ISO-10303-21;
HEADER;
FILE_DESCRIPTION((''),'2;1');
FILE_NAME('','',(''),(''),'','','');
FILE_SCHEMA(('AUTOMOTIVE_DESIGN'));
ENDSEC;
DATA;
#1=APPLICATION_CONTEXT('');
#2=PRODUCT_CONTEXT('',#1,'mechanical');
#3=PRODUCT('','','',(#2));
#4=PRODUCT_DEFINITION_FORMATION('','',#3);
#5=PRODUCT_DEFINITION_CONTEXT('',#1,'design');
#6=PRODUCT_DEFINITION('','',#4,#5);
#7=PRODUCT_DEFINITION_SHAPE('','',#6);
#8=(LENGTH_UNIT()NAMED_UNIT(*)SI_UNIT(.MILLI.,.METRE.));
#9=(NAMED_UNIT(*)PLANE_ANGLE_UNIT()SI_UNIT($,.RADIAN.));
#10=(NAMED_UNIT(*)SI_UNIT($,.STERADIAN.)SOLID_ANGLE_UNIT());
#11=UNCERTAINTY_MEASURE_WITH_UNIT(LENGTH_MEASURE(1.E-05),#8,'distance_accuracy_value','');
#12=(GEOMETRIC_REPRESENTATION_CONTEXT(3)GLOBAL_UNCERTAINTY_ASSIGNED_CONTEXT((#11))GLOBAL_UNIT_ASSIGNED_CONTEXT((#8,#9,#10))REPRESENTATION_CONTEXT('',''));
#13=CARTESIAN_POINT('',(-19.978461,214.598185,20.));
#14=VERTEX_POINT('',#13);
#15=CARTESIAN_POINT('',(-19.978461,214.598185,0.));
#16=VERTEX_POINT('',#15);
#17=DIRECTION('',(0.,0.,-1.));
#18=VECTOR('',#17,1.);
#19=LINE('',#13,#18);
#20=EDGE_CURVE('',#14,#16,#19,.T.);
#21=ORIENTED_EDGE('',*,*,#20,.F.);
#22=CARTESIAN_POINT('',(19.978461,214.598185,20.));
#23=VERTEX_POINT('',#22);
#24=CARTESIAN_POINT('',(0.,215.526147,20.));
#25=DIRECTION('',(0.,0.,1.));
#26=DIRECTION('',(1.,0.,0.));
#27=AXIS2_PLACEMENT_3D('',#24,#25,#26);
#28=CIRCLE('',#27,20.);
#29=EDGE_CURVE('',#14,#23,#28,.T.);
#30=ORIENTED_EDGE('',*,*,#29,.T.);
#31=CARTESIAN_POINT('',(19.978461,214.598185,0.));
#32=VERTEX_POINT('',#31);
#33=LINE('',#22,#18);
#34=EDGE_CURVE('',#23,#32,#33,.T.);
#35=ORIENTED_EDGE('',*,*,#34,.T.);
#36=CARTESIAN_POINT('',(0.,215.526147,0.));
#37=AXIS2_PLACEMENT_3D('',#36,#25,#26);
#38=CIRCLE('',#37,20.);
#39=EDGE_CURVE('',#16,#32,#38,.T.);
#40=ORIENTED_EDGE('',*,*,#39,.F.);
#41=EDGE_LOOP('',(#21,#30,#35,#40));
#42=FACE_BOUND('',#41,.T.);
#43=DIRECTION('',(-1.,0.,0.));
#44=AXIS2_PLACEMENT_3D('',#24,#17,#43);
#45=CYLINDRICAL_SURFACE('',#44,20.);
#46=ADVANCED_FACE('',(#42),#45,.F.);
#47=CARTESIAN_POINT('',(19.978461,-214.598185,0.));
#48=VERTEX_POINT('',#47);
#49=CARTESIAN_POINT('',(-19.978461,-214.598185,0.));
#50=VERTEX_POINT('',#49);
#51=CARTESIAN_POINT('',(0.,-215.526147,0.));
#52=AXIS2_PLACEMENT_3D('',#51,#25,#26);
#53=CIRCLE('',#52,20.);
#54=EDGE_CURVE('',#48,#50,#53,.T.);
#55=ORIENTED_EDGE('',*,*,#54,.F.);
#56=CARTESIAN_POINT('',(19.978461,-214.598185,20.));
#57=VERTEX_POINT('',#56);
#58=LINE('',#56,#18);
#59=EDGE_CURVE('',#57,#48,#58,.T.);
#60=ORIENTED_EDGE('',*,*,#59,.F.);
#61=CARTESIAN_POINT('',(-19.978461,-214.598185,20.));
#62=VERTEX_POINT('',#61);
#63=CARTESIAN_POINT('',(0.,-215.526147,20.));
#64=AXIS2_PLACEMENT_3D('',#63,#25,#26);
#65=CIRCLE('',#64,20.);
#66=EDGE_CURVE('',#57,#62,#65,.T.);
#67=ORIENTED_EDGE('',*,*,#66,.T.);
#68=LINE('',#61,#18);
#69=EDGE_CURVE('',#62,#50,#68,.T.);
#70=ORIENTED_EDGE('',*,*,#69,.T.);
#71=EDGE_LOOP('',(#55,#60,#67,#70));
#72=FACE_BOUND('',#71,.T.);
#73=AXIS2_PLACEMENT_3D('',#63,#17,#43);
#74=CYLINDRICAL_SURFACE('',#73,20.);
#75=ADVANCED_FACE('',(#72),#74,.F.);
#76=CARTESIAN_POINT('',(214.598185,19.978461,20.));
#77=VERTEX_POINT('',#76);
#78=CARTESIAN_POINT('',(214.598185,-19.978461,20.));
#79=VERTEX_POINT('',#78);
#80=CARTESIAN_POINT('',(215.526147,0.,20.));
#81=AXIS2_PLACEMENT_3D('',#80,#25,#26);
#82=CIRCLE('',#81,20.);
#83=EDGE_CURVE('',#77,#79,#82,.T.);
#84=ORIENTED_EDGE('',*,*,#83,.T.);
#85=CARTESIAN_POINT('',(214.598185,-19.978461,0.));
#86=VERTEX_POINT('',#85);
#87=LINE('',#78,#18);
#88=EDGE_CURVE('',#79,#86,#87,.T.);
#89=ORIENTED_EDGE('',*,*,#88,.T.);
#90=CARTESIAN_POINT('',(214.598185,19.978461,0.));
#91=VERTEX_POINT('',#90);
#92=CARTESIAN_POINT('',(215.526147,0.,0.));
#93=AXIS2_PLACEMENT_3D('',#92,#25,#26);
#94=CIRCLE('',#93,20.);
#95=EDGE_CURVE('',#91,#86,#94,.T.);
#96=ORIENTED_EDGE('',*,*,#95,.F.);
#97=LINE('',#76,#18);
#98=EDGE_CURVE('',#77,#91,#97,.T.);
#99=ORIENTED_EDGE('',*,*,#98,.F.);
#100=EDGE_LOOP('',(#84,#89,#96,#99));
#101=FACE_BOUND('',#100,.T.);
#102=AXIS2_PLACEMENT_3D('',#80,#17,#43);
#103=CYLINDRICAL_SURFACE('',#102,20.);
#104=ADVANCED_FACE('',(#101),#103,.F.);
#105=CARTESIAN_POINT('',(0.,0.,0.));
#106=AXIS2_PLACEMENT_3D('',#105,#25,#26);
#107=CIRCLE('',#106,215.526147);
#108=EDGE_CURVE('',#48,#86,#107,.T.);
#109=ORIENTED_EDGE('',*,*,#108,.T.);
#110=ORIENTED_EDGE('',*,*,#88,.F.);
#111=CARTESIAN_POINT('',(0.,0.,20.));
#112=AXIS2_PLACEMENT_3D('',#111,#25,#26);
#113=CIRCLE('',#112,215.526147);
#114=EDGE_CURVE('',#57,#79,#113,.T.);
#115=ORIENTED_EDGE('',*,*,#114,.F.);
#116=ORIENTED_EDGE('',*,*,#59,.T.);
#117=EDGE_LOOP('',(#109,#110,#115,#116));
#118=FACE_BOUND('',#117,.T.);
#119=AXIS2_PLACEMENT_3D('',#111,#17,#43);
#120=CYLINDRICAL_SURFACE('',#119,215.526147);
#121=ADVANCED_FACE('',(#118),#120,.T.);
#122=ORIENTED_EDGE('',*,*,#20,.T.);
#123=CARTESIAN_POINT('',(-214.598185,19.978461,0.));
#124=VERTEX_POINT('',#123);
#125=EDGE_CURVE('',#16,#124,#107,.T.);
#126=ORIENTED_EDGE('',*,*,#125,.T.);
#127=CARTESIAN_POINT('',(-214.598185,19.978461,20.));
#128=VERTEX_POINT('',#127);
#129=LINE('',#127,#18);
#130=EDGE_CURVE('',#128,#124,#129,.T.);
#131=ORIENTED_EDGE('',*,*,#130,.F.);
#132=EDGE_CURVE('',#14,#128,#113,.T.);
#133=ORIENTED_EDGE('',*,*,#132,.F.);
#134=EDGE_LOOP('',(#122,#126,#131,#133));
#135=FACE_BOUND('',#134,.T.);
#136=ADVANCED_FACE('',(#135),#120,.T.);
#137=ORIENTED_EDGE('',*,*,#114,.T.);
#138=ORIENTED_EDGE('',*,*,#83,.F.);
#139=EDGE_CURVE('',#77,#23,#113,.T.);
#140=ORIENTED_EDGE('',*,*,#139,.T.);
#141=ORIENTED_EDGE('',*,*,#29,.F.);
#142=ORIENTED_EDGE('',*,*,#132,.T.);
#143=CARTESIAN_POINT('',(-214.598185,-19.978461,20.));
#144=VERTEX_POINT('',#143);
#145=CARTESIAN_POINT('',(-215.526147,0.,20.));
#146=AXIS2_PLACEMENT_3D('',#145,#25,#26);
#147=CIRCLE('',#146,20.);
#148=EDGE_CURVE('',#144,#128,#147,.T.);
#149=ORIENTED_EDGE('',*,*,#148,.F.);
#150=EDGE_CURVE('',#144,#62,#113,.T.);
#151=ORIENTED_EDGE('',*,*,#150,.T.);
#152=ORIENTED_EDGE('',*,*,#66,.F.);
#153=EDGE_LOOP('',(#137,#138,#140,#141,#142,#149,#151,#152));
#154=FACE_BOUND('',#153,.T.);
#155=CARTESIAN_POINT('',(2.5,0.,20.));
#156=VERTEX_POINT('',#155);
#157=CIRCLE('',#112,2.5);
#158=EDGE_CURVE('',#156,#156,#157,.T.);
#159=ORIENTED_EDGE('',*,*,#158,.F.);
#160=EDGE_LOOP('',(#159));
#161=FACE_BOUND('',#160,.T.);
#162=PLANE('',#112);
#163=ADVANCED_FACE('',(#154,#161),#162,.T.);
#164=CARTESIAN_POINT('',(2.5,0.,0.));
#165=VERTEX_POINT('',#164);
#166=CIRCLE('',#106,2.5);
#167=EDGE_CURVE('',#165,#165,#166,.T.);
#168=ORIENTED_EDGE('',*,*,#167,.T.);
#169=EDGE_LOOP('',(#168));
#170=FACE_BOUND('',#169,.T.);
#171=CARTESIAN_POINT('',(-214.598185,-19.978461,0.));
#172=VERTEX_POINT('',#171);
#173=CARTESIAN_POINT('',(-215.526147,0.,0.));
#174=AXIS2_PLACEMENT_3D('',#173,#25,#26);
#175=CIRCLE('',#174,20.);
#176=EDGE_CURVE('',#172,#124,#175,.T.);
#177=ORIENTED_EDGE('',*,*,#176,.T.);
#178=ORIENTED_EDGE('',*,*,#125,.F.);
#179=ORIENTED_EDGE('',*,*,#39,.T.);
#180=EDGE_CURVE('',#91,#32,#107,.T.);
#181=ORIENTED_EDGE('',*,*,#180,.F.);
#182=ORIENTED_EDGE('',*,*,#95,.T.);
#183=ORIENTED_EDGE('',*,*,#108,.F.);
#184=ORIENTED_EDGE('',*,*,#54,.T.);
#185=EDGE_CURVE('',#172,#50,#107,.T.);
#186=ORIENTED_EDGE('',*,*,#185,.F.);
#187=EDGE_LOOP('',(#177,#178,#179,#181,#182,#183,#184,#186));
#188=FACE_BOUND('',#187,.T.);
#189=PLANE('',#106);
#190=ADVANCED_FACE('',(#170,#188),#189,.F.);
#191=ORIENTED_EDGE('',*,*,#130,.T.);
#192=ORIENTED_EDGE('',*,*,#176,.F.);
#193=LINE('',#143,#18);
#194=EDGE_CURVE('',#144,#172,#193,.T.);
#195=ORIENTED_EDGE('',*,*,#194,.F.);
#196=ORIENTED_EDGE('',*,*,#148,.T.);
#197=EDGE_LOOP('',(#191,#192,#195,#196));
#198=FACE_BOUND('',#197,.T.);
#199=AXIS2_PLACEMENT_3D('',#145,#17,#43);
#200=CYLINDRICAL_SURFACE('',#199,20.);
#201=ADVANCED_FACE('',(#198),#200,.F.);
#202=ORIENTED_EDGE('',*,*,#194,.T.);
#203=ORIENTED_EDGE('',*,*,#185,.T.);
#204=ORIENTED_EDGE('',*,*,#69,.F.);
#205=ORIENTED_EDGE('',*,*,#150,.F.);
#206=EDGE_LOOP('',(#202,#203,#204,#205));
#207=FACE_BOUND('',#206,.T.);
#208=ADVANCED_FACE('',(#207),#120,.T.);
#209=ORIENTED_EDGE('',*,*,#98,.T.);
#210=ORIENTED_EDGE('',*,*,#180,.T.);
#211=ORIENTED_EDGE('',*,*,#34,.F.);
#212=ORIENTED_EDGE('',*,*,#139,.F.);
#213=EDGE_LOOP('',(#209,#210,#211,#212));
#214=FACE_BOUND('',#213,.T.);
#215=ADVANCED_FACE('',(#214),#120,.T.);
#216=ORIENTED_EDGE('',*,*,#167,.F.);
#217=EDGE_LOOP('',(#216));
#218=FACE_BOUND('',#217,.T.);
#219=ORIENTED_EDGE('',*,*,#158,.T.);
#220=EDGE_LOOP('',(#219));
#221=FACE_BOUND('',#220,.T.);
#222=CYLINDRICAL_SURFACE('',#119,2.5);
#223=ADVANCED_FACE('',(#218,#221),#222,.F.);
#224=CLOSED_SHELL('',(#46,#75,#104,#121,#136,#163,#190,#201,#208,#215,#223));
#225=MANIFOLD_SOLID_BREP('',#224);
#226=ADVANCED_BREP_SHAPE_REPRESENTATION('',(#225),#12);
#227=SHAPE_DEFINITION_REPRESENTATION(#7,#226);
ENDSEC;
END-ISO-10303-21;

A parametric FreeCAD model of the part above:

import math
import FreeCAD as App
import Part
import Sketcher
Q = App.Units.Quantity

doc = App.newDocument("Part")
body = doc.addObject("PartDesign::Body", "Body")

sketch1 = doc.addObject("Sketcher::SketchObject", "Sketch")
body.addObject(sketch1)
sketch1.AttachmentSupport = (doc.XY_Plane, [""])
sketch1.MapMode = "FlatFace"
sketch1.addGeometry(Part.ArcOfCircle(Part.Circle(App.Vector(215.526147, 0, 0), App.Vector(0, 0, 1), 20), math.radians(92.659369), math.radians(267.340631)), False)
sketch1.addGeometry(Part.ArcOfCircle(Part.Circle(App.Vector(0, 0, 0), App.Vector(0, 0, 1), 215.526147), math.radians(5.318738), math.radians(84.681262)), False)
sketch1.addGeometry(Part.ArcOfCircle(Part.Circle(App.Vector(0, 215.526147, 0), App.Vector(0, 0, 1), 20), math.radians(-177.340631), math.radians(-2.659369)), False)
sketch1.addGeometry(Part.ArcOfCircle(Part.Circle(App.Vector(0, 0, 0), App.Vector(0, 0, 1), 215.526147), math.radians(95.318738), math.radians(174.681262)), False)
sketch1.addGeometry(Part.ArcOfCircle(Part.Circle(App.Vector(-215.526147, 0, 0), App.Vector(0, 0, 1), 20), math.radians(0), math.radians(87.340631)), False)
sketch1.addGeometry(Part.ArcOfCircle(Part.Circle(App.Vector(-215.526147, 0, 0), App.Vector(0, 0, 1), 20), math.radians(-87.340631), math.radians(0)), False)
sketch1.addGeometry(Part.ArcOfCircle(Part.Circle(App.Vector(0, 0, 0), App.Vector(0, 0, 1), 215.526147), math.radians(-174.681262), math.radians(-95.318738)), False)
sketch1.addGeometry(Part.ArcOfCircle(Part.Circle(App.Vector(0, -215.526147, 0), App.Vector(0, 0, 1), 20), math.radians(2.659369), math.radians(177.340631)), False)
sketch1.addGeometry(Part.ArcOfCircle(Part.Circle(App.Vector(0, 0, 0), App.Vector(0, 0, 1), 215.526147), math.radians(-84.681262), math.radians(-5.318738)), False)
sketch1.addGeometry(Part.Circle(App.Vector(0, 0, 0), App.Vector(0, 0, 1), 2.5), False)
sketch1.addConstraint(Sketcher.Constraint("Coincident", 0, 1, 1, 1))
sketch1.addConstraint(Sketcher.Constraint("Coincident", 1, 2, 2, 2))
sketch1.addConstraint(Sketcher.Constraint("Coincident", 2, 1, 3, 1))
sketch1.addConstraint(Sketcher.Constraint("Coincident", 3, 2, 4, 2))
sketch1.addConstraint(Sketcher.Constraint("Tangent", 4, 1, 5, 2))
sketch1.addConstraint(Sketcher.Constraint("Coincident", 5, 1, 6, 1))
sketch1.addConstraint(Sketcher.Constraint("Coincident", 6, 2, 7, 2))
sketch1.addConstraint(Sketcher.Constraint("Coincident", 7, 1, 8, 1))
sketch1.addConstraint(Sketcher.Constraint("Coincident", 8, 2, 0, 2))
sketch1.addConstraint(Sketcher.Constraint("Coincident", 1, 3, -1, 1))
sketch1.addConstraint(Sketcher.Constraint("Coincident", 3, 3, -1, 1))
sketch1.addConstraint(Sketcher.Constraint("Coincident", 6, 3, -1, 1))
sketch1.addConstraint(Sketcher.Constraint("Coincident", 8, 3, -1, 1))
sketch1.addConstraint(Sketcher.Constraint("Coincident", 9, 3, -1, 1))
sketch1.addConstraint(Sketcher.Constraint("Equal", 0, 2))
sketch1.addConstraint(Sketcher.Constraint("Equal", 1, 3))
sketch1.addConstraint(Sketcher.Constraint("Equal", 2, 4))
sketch1.addConstraint(Sketcher.Constraint("Equal", 4, 5))
sketch1.addConstraint(Sketcher.Constraint("Equal", 3, 6))
sketch1.addConstraint(Sketcher.Constraint("Equal", 5, 7))
sketch1.addConstraint(Sketcher.Constraint("Equal", 6, 8))
sketch1.addConstraint(Sketcher.Constraint("Symmetric", 0, 3, 4, 3, -1, 1))
sketch1.addConstraint(Sketcher.Constraint("Symmetric", 2, 3, 7, 3, -1, 1))
sketch1.addConstraint(Sketcher.Constraint("PointOnObject", 0, 3, -1))
sketch1.addConstraint(Sketcher.Constraint("PointOnObject", 2, 3, -2))
sketch1.addConstraint(Sketcher.Constraint("PointOnObject", 4, 1, -1))
sketch1.addConstraint(Sketcher.Constraint("Diameter", 9, Q("5 mm")))
sketch1.addConstraint(Sketcher.Constraint("Radius", 0, Q("20 mm")))
sketch1.addConstraint(Sketcher.Constraint("Radius", 1, Q("215.526147 mm")))
sketch1.addConstraint(Sketcher.Constraint("DistanceY", -1, 1, 0, 1, Q("19.978461 mm")))
sketch1.addConstraint(Sketcher.Constraint("DistanceX", 2, 1, -1, 1, Q("19.978461 mm")))
pad1 = doc.addObject("PartDesign::Pad", "Pad")
body.addObject(pad1)
pad1.Profile = sketch1
pad1.Length = 20

doc.recompute()
